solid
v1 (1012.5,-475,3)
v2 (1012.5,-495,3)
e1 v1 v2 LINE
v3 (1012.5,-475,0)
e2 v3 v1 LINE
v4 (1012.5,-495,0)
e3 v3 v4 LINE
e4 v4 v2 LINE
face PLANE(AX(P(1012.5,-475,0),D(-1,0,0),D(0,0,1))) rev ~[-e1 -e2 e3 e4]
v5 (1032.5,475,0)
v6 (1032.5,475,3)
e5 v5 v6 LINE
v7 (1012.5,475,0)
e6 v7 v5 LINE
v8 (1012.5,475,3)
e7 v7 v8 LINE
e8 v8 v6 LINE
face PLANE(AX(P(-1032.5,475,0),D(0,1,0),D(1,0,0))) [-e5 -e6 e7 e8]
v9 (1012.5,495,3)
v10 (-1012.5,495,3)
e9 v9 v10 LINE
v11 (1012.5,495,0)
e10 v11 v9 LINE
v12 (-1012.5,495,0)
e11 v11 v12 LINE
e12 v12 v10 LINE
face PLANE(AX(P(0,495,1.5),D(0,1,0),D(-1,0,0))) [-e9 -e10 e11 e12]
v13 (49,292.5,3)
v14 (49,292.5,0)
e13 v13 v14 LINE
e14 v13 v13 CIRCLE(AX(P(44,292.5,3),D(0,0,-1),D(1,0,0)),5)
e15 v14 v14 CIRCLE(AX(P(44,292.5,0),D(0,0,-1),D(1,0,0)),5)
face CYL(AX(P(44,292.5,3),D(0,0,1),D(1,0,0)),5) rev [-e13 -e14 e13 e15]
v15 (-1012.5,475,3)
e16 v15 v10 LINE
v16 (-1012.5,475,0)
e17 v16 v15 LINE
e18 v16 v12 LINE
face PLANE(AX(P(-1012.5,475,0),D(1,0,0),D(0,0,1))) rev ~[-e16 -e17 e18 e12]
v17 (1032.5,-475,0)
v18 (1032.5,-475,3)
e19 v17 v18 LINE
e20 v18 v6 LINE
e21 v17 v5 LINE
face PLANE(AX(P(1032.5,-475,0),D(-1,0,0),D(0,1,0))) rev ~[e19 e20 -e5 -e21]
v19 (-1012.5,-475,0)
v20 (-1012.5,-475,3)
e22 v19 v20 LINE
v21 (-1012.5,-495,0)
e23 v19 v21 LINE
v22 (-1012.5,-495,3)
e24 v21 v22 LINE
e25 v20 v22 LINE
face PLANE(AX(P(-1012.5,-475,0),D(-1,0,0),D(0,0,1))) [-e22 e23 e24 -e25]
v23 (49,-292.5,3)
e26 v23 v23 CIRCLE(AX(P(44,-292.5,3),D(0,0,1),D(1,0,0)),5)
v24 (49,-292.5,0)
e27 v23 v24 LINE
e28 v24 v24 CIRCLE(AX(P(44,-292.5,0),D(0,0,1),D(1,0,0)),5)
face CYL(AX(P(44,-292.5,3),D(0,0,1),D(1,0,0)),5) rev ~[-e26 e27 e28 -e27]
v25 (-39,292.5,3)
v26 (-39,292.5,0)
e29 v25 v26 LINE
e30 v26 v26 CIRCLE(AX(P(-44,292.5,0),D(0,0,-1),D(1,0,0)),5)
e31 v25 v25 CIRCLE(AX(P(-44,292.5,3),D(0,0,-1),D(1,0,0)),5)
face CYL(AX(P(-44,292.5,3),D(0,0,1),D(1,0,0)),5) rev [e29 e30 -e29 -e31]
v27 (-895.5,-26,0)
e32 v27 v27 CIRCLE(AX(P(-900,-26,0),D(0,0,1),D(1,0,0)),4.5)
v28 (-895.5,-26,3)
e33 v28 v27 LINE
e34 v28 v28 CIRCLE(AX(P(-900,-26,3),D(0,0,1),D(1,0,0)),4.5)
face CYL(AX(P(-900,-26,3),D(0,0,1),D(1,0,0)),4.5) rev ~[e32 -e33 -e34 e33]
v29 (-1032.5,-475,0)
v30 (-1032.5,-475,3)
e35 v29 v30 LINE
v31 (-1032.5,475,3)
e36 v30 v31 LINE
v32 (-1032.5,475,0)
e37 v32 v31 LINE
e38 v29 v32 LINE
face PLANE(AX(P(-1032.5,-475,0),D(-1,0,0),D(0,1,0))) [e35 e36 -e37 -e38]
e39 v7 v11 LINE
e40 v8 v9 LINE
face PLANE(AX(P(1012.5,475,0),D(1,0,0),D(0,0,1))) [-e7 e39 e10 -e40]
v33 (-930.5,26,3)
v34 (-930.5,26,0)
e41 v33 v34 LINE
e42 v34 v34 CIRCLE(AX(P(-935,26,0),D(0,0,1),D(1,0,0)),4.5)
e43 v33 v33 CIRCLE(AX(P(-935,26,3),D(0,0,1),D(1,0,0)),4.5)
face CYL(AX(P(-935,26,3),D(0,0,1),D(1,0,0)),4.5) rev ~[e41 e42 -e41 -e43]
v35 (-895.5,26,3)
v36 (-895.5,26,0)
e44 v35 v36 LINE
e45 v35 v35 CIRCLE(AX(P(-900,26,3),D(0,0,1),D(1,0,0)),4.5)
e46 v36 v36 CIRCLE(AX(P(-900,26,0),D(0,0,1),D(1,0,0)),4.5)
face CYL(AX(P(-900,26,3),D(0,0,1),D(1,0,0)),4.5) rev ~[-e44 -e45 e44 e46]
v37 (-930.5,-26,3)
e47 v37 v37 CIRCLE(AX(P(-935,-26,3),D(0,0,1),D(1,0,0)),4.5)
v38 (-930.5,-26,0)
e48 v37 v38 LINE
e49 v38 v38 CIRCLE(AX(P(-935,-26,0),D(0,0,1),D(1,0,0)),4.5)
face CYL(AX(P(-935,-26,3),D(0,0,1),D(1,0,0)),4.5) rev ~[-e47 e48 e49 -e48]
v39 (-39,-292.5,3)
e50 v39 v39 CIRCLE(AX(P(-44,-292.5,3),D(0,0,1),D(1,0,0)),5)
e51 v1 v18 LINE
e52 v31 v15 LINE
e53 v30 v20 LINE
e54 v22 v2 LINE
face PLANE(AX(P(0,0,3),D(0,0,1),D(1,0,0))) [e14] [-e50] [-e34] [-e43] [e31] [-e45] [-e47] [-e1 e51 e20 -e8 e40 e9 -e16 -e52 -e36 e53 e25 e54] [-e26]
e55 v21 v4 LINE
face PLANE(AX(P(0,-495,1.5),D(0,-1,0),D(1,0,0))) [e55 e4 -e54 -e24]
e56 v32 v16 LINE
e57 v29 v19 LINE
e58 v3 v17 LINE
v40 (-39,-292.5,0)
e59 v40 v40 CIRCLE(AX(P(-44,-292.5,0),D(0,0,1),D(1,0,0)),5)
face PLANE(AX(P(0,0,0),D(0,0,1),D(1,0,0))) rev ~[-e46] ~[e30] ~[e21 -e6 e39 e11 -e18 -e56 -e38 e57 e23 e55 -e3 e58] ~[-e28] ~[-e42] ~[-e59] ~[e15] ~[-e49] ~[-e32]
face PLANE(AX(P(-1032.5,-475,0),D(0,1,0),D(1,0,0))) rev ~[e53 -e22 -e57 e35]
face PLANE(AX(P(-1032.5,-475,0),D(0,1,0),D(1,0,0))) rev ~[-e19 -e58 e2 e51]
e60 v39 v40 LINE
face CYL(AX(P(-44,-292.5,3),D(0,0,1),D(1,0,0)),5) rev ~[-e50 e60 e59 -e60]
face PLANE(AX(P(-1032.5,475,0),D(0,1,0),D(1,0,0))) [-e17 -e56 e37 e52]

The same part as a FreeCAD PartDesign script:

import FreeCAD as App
import Part
import Sketcher

V = App.Vector

doc = App.newDocument("Part")
body = doc.addObject("PartDesign::Body", "Body")

sketch1 = doc.addObject("Sketcher::SketchObject", "Sketch")
body.addObject(sketch1)
sketch1.AttachmentSupport = (doc.XY_Plane, [""])
sketch1.MapMode = "FlatFace"
sketch1.addGeometry([
    Part.LineSegment(V(-1032.5, 475, 0), V(-1032.5, -475, 0)),
    Part.LineSegment(V(-1032.5, -475, 0), V(1032.5, -475, 0)),
    Part.LineSegment(V(1032.5, -475, 0), V(1032.5, 475, 0)),
    Part.LineSegment(V(1032.5, 475, 0), V(-1032.5, 475, 0)),
], False)
sketch1.addConstraint([
    Sketcher.Constraint("Coincident", 0, 2, 1, 1),
    Sketcher.Constraint("Coincident", 1, 2, 2, 1),
    Sketcher.Constraint("Coincident", 2, 2, 3, 1),
    Sketcher.Constraint("Coincident", 3, 2, 0, 1),
    Sketcher.Constraint("Vertical", 0),
    Sketcher.Constraint("Horizontal", 1),
    Sketcher.Constraint("Vertical", 2),
    Sketcher.Constraint("Horizontal", 3),
    Sketcher.Constraint("Symmetric", 0, 2, 2, 2, -1, 1),
    Sketcher.Constraint("DistanceX", 1, 1, 1, 2, 2065.0),
    Sketcher.Constraint("DistanceY", 0, 2, 0, 1, 950.0),
])
pad1 = doc.addObject("PartDesign::Pad", "Pad")
body.addObject(pad1)
pad1.Profile = sketch1
pad1.Length = 3

sketch2 = doc.addObject("Sketcher::SketchObject", "Sketch001")
body.addObject(sketch2)
sketch2.AttachmentSupport = (doc.XY_Plane, [""])
sketch2.MapMode = "FlatFace"
sketch2.AttachmentOffset = App.Placement(V(0, 0, 3), App.Rotation())
sketch2.addGeometry([
    Part.Circle(V(-44, -292.5, 0), V(0, 0, 1), 5),
    Part.Circle(V(44, -292.5, 0), V(0, 0, 1), 5),
], False)
sketch2.addConstraint([
    Sketcher.Constraint("Equal", 0, 1),
    Sketcher.Constraint("Symmetric", 0, 3, 1, 3, -2),
    Sketcher.Constraint("Diameter", 0, 10.0),
    Sketcher.Constraint("DistanceX", 0, 3, -1, 1, 44.0),
    Sketcher.Constraint("DistanceY", 0, 3, -1, 1, 292.5),
])
pocket1 = doc.addObject("PartDesign::Pocket", "Pocket")
body.addObject(pocket1)
pocket1.Profile = sketch2
pocket1.Type = "ThroughAll"
doc.recompute()

mirrored = doc.addObject("PartDesign::Mirrored", "Mirrored")
body.addObject(mirrored)
mirrored.Originals = [pocket1]
mirrored.MirrorPlane = (doc.XZ_Plane, [""])
body.Tip = mirrored

sketch3 = doc.addObject("Sketcher::SketchObject", "Sketch002")
body.addObject(sketch3)
sketch3.AttachmentSupport = (doc.XY_Plane, [""])
sketch3.MapMode = "FlatFace"
sketch3.AttachmentOffset = App.Placement(V(0, 0, 3), App.Rotation())
sketch3.addGeometry([
    Part.Circle(V(-935, -26, 0), V(0, 0, 1), 4.5),
    Part.Circle(V(-935, 26, 0), V(0, 0, 1), 4.5),
    Part.Circle(V(-900, -26, 0), V(0, 0, 1), 4.5),
    Part.Circle(V(-900, 26, 0), V(0, 0, 1), 4.5),
], False)
sketch3.addConstraint([
    Sketcher.Constraint("Equal", 0, 1),
    Sketcher.Constraint("Equal", 1, 2),
    Sketcher.Constraint("Equal", 2, 3),
    Sketcher.Constraint("Symmetric", 0, 3, 1, 3, -1),
    Sketcher.Constraint("Symmetric", 2, 3, 3, 3, -1),
    Sketcher.Constraint("Horizontal", 0, 3, 2, 3),
    Sketcher.Constraint("Diameter", 0, 9.0),
    Sketcher.Constraint("DistanceX", 0, 3, -1, 1, 935.0),
    Sketcher.Constraint("DistanceY", 0, 3, -1, 1, 26.0),
    Sketcher.Constraint("DistanceX", 2, 3, -1, 1, 900.0),
])
pocket2 = doc.addObject("PartDesign::Pocket", "Pocket001")
body.addObject(pocket2)
pocket2.Profile = sketch3
pocket2.Type = "ThroughAll"

sketch4 = doc.addObject("Sketcher::SketchObject", "Sketch003")
body.addObject(sketch4)
sketch4.AttachmentSupport = (doc.XZ_Plane, [""])
sketch4.MapMode = "FlatFace"
sketch4.AttachmentOffset = App.Placement(V(0, 0, 475), App.Rotation())
sketch4.addGeometry([
    Part.LineSegment(V(-1012.5, 3, 0), V(-1012.5, 0, 0)),
    Part.LineSegment(V(-1012.5, 0, 0), V(1012.5, 0, 0)),
    Part.LineSegment(V(1012.5, 0, 0), V(1012.5, 3, 0)),
    Part.LineSegment(V(1012.5, 3, 0), V(-1012.5, 3, 0)),
], False)
sketch4.addConstraint([
    Sketcher.Constraint("Coincident", 0, 2, 1, 1),
    Sketcher.Constraint("Coincident", 1, 2, 2, 1),
    Sketcher.Constraint("Coincident", 2, 2, 3, 1),
    Sketcher.Constraint("Coincident", 3, 2, 0, 1),
    Sketcher.Constraint("Vertical", 0),
    Sketcher.Constraint("Horizontal", 1),
    Sketcher.Constraint("Vertical", 2),
    Sketcher.Constraint("Horizontal", 3),
    Sketcher.Constraint("Symmetric", 0, 2, 1, 2, -1, 1),
    Sketcher.Constraint("DistanceX", 1, 1, 1, 2, 2025.0),
    Sketcher.Constraint("DistanceY", 0, 2, 0, 1, 3.0),
])
pad2 = doc.addObject("PartDesign::Pad", "Pad001")
body.addObject(pad2)
pad2.Profile = sketch4
pad2.Length = 20

sketch5 = doc.addObject("Sketcher::SketchObject", "Sketch004")
body.addObject(sketch5)
sketch5.AttachmentSupport = (doc.XZ_Plane, [""])
sketch5.MapMode = "FlatFace"
sketch5.AttachmentOffset = App.Placement(V(0, 0, -475), App.Rotation())
sketch5.addGeometry([
    Part.LineSegment(V(1012.5, 3, 0), V(1012.5, 0, 0)),
    Part.LineSegment(V(1012.5, 0, 0), V(-1012.5, 0, 0)),
    Part.LineSegment(V(-1012.5, 0, 0), V(-1012.5, 3, 0)),
    Part.LineSegment(V(-1012.5, 3, 0), V(1012.5, 3, 0)),
], False)
sketch5.addConstraint([
    Sketcher.Constraint("Coincident", 0, 2, 1, 1),
    Sketcher.Constraint("Coincident", 1, 2, 2, 1),
    Sketcher.Constraint("Coincident", 2, 2, 3, 1),
    Sketcher.Constraint("Coincident", 3, 2, 0, 1),
    Sketcher.Constraint("Vertical", 0),
    Sketcher.Constraint("Horizontal", 1),
    Sketcher.Constraint("Vertical", 2),
    Sketcher.Constraint("Horizontal", 3),
    Sketcher.Constraint("Symmetric", 0, 2, 1, 2, -1, 1),
    Sketcher.Constraint("DistanceX", 1, 2, 1, 1, 2025.0),
    Sketcher.Constraint("DistanceY", 0, 2, 0, 1, 3.0),
])
pad3 = doc.addObject("PartDesign::Pad", "Pad002")
body.addObject(pad3)
pad3.Profile = sketch5
pad3.Length = 20
pad3.Reversed = True

doc.recompute()
